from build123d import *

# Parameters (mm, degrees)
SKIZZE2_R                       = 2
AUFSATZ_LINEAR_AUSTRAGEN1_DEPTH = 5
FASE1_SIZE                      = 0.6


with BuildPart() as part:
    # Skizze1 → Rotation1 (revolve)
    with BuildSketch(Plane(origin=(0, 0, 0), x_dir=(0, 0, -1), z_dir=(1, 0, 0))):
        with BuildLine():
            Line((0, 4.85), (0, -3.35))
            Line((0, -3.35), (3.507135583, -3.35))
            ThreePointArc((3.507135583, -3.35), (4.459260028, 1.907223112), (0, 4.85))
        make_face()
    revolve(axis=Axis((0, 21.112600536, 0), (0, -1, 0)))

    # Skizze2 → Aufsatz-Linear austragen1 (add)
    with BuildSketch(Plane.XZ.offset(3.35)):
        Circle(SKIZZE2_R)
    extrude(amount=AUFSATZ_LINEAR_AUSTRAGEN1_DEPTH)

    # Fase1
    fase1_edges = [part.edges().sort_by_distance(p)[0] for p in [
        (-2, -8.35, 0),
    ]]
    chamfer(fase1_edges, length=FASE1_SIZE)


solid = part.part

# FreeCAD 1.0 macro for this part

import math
import FreeCAD as App
import Part
import Sketcher
from FreeCAD import Vector
Q = App.Units.Quantity


def edges_at(feature, points):
    """Names of the edges that pass closest to the given points."""
    edges = feature.Shape.Edges
    near = lambda p: min(range(len(edges)), key=lambda i: edges[i].distToShape(Part.Vertex(*p))[0])
    return sorted({f"Edge{near(p) + 1}" for p in points})

doc = App.newDocument("Part")
body = doc.addObject("PartDesign::Body", "Body")

sketch1 = body.newObject("Sketcher::SketchObject", "Sketch")
sketch1.AttachmentSupport = (doc.getObject("YZ_Plane"), [""])
sketch1.MapMode = "FlatFace"
sketch1.addGeometry([
    Part.LineSegment(Vector(4.8, 0, 0), Vector(-3.4, 0, 0)),
    Part.LineSegment(Vector(-3.4, 0, 0), Vector(-3.4, -3.5, 0)),
    Part.ArcOfCircle(Part.Circle(Vector(0, 0, 0), Vector(0, 0, 1), 4.8), math.radians(-134), math.radians(0)),
], False)
sketch1.addConstraint([
    Sketcher.Constraint("Coincident", 0, 2, 1, 1),
    Sketcher.Constraint("Coincident", 1, 2, 2, 1),
    Sketcher.Constraint("Coincident", 2, 2, 0, 1),
    Sketcher.Constraint("Horizontal", 0),
    Sketcher.Constraint("Vertical", 1),
    Sketcher.Constraint("Coincident", 2, 3, -1, 1),
    Sketcher.Constraint("PointOnObject", 0, 2, -1),
    Sketcher.Constraint("Radius", 2, Q("4.85 mm")),
    Sketcher.Constraint("DistanceX", 0, 2, 0, 1, Q("8.2 mm")),
])
revolution = body.newObject("PartDesign::Revolution", "Revolution")
revolution.Profile = sketch1
revolution.ReferenceAxis = (sketch1, ["H_Axis"])
revolution.Angle = 360

sketch2 = body.newObject("Sketcher::SketchObject", "Sketch001")
sketch2.AttachmentSupport = (doc.getObject("XZ_Plane"), [""])
sketch2.MapMode = "FlatFace"
sketch2.AttachmentOffset = App.Placement(Vector(0, 0, 3.35), App.Rotation())
sketch2.addGeometry(Part.Circle(Vector(0, 0, 0), Vector(0, 0, 1), 2), False)
sketch2.addConstraint([
    Sketcher.Constraint("Coincident", 0, 3, -1, 1),
    Sketcher.Constraint("Diameter", 0, Q("4 mm")),
])
pad1 = body.newObject("PartDesign::Pad", "Pad")
pad1.Profile = sketch2
pad1.Length = 5
doc.recompute()

chamfer = body.newObject("PartDesign::Chamfer", "Chamfer")
chamfer.Base = (pad1, edges_at(pad1, [(-2, -8.35, 0)]))
chamfer.Size = 0.6

doc.recompute()
